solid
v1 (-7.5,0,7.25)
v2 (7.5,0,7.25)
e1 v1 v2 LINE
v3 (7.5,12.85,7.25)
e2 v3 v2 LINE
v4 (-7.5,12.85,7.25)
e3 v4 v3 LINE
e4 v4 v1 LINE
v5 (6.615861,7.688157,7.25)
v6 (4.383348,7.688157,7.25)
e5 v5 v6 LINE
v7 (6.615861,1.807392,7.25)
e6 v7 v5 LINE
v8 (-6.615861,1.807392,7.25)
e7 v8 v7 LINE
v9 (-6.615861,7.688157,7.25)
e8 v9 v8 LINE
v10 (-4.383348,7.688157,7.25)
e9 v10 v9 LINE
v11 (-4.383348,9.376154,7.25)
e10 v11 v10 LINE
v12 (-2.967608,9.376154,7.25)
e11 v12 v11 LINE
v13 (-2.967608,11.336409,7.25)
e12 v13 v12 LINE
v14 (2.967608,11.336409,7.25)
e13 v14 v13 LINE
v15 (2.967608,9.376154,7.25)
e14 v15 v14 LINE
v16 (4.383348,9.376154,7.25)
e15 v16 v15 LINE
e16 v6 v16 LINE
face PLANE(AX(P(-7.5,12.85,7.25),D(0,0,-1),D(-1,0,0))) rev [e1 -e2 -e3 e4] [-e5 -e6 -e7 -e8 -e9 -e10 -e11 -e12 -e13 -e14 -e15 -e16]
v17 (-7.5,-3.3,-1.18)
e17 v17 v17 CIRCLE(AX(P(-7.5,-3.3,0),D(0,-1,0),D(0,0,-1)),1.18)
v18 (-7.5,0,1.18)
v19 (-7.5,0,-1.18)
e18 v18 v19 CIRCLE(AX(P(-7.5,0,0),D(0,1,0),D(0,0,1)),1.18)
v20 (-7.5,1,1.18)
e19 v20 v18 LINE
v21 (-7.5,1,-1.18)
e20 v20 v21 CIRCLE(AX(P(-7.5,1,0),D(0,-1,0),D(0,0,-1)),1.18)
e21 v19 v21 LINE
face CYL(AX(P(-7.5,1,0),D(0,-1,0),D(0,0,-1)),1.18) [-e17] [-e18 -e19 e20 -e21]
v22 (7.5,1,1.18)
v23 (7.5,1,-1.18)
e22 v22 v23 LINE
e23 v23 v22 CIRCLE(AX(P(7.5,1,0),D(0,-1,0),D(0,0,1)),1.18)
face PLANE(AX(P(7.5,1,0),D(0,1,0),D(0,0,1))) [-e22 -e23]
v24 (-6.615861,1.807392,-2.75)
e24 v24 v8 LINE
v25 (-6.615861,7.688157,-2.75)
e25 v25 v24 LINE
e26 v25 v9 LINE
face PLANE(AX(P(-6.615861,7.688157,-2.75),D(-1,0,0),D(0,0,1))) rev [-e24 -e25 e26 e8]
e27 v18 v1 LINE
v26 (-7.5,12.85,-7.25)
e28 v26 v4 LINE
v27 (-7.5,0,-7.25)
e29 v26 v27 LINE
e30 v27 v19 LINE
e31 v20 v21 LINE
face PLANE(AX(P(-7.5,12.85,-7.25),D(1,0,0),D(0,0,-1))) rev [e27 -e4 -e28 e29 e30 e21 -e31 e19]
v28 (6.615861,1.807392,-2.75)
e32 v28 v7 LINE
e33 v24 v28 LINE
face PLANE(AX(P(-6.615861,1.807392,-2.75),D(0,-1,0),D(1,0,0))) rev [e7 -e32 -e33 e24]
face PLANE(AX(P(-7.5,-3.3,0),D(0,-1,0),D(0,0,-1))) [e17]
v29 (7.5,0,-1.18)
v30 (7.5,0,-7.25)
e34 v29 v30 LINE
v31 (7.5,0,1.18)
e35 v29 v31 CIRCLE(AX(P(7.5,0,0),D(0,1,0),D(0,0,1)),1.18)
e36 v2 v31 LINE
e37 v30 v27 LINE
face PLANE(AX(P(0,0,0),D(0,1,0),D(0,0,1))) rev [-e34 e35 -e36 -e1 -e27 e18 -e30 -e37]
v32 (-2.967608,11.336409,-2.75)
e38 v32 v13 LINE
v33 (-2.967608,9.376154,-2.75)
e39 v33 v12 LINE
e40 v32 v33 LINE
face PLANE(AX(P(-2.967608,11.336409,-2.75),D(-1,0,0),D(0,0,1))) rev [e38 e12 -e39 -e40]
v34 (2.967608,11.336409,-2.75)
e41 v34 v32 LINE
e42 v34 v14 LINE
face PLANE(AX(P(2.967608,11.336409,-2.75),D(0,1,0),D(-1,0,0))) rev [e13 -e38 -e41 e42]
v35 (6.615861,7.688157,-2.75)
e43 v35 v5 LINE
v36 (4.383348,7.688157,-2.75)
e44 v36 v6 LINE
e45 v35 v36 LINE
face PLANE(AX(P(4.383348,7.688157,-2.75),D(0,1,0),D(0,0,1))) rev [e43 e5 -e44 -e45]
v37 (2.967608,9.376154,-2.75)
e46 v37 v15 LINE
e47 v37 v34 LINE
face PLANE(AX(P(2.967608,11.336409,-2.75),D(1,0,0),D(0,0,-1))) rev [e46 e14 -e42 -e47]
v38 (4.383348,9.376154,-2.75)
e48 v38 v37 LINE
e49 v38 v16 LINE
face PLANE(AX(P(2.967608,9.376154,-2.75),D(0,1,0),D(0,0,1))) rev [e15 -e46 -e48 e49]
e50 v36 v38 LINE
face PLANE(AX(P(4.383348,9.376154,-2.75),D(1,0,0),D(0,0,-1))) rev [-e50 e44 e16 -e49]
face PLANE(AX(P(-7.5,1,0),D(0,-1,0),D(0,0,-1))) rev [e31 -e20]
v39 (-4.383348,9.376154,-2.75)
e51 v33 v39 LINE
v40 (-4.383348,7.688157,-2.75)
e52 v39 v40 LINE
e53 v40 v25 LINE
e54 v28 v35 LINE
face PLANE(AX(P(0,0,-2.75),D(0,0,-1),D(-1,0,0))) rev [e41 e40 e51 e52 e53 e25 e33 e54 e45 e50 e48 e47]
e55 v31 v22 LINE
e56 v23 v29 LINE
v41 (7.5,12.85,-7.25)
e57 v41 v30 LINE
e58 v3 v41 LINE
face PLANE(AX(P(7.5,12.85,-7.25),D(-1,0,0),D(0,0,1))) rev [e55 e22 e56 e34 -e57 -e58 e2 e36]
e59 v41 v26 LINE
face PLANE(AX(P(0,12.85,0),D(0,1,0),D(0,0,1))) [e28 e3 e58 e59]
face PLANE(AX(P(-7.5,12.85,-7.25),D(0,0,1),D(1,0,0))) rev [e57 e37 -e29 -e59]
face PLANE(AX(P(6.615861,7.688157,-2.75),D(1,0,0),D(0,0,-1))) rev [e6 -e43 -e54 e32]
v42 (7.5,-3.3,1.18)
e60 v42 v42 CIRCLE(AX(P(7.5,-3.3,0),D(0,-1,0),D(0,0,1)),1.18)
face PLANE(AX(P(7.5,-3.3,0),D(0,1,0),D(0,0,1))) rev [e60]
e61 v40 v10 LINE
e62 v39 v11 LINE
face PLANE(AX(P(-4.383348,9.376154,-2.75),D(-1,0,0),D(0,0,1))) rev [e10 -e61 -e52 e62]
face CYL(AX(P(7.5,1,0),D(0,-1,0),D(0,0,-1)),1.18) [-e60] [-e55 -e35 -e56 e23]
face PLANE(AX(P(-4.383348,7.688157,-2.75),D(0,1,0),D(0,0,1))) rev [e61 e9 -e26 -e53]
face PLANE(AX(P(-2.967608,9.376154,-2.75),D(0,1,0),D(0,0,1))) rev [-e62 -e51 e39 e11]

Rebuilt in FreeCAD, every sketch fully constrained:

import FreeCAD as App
import Part
import Sketcher

doc = App.newDocument("Part")
params = doc.addObject("Spreadsheet::Sheet", "Params")
for row, (alias, value) in enumerate([
    ("sketch1_width", "15 mm"),
    ("sketch1_height", "14.5 mm"),
    ("pad1_length", "12.85 mm"),
    ("sketch2_diameter", "2.36 mm"),
    ("pad2_length", "3.3 mm"),
    ("pad2_length2", "1 mm"),
    ("pocket1_length", "10 mm"),
], start=1):
    params.set(f"A{row}", alias)
    params.set(f"B{row}", "=" + value)
    params.setAlias(f"B{row}", alias)

body = doc.addObject("PartDesign::Body", "Body")

sketch1 = body.newObject("Sketcher::SketchObject", "Sketch")
sketch1.AttachmentSupport = (doc.getObject("XZ_Plane"), [""])
sketch1.MapMode = "FlatFace"
sketch1.addGeometry([
    Part.LineSegment(App.Vector(-7.5, -7.25, 0), App.Vector(-7.5, 7.25, 0)),
    Part.LineSegment(App.Vector(-7.5, 7.25, 0), App.Vector(7.5, 7.25, 0)),
    Part.LineSegment(App.Vector(7.5, 7.25, 0), App.Vector(7.5, -7.25, 0)),
    Part.LineSegment(App.Vector(7.5, -7.25, 0), App.Vector(-7.5, -7.25, 0)),
], False)
sketch1.addConstraint([
    Sketcher.Constraint("Coincident", 0, 2, 1, 1),
    Sketcher.Constraint("Coincident", 1, 2, 2, 1),
    Sketcher.Constraint("Coincident", 2, 2, 3, 1),
    Sketcher.Constraint("Coincident", 3, 2, 0, 1),
    Sketcher.Constraint("Vertical", 0),
    Sketcher.Constraint("Horizontal", 1),
    Sketcher.Constraint("Vertical", 2),
    Sketcher.Constraint("Horizontal", 3),
    Sketcher.Constraint("Symmetric", 0, 2, 2, 2, -1, 1),
    Sketcher.Constraint("DistanceX", 1, 1, 1, 2, 15.0),
    Sketcher.Constraint("DistanceY", 0, 1, 0, 2, 14.5),
])
sketch1.setExpression("Constraints[9]", "Params.sketch1_width")
sketch1.setExpression("Constraints[10]", "Params.sketch1_height")
pad1 = body.newObject("PartDesign::Pad", "Pad")
pad1.Profile = sketch1
pad1.setExpression("Length", "Params.pad1_length")
pad1.Reversed = True

sketch2 = body.newObject("Sketcher::SketchObject", "Sketch001")
sketch2.AttachmentSupport = (doc.getObject("XZ_Plane"), [""])
sketch2.MapMode = "FlatFace"
sketch2.addGeometry([
    Part.Circle(App.Vector(-7.5, 0, 0), App.Vector(0, 0, 1), 1.18),
    Part.Circle(App.Vector(7.5, 0, 0), App.Vector(0, 0, 1), 1.18),
], False)
sketch2.addConstraint([
    Sketcher.Constraint("Equal", 0, 1),
    Sketcher.Constraint("Symmetric", 0, 3, 1, 3, -1, 1),
    Sketcher.Constraint("PointOnObject", 0, 3, -1),
    Sketcher.Constraint("Diameter", 0, 2.36),
    Sketcher.Constraint("DistanceX", 0, 3, 1, 3, 15.0),
])
sketch2.setExpression("Constraints[3]", "Params.sketch2_diameter")
pad2 = body.newObject("PartDesign::Pad", "Pad001")
pad2.Profile = sketch2
pad2.Type = "TwoLengths"
pad2.setExpression("Length", "Params.pad2_length")
pad2.setExpression("Length2", "Params.pad2_length2")

sketch3 = body.newObject("Sketcher::SketchObject", "Sketch002")
sketch3.AttachmentSupport = (doc.getObject("XY_Plane"), [""])
sketch3.MapMode = "FlatFace"
sketch3.AttachmentOffset = App.Placement(App.Vector(0, 0, 7.25), App.Rotation())
sketch3.addGeometry([
    Part.LineSegment(App.Vector(2.967608, 11.336409, 0), App.Vector(-2.967608, 11.336409, 0)),
    Part.LineSegment(App.Vector(-2.967608, 11.336409, 0), App.Vector(-2.967608, 9.376154, 0)),
    Part.LineSegment(App.Vector(-2.967608, 9.376154, 0), App.Vector(-4.383348, 9.376154, 0)),
    Part.LineSegment(App.Vector(-4.383348, 9.376154, 0), App.Vector(-4.383348, 7.688157, 0)),
    Part.LineSegment(App.Vector(-4.383348, 7.688157, 0), App.Vector(-6.615861, 7.688157, 0)),
    Part.LineSegment(App.Vector(-6.615861, 7.688157, 0), App.Vector(-6.615861, 1.807392, 0)),
    Part.LineSegment(App.Vector(-6.615861, 1.807392, 0), App.Vector(6.615861, 1.807392, 0)),
    Part.LineSegment(App.Vector(6.615861, 1.807392, 0), App.Vector(6.615861, 7.688157, 0)),
    Part.LineSegment(App.Vector(6.615861, 7.688157, 0), App.Vector(4.383348, 7.688157, 0)),
    Part.LineSegment(App.Vector(4.383348, 7.688157, 0), App.Vector(4.383348, 9.376154, 0)),
    Part.LineSegment(App.Vector(4.383348, 9.376154, 0), App.Vector(2.967608, 9.376154, 0)),
    Part.LineSegment(App.Vector(2.967608, 9.376154, 0), App.Vector(2.967608, 11.336409, 0)),
], False)
sketch3.addConstraint([
    Sketcher.Constraint("Coincident", 0, 2, 1, 1),
    Sketcher.Constraint("Coincident", 1, 2, 2, 1),
    Sketcher.Constraint("Coincident", 2, 2, 3, 1),
    Sketcher.Constraint("Coincident", 3, 2, 4, 1),
    Sketcher.Constraint("Coincident", 4, 2, 5, 1),
    Sketcher.Constraint("Coincident", 5, 2, 6, 1),
    Sketcher.Constraint("Coincident", 6, 2, 7, 1),
    Sketcher.Constraint("Coincident", 7, 2, 8, 1),
    Sketcher.Constraint("Coincident", 8, 2, 9, 1),
    Sketcher.Constraint("Coincident", 9, 2, 10, 1),
    Sketcher.Constraint("Coincident", 10, 2, 11, 1),
    Sketcher.Constraint("Coincident", 11, 2, 0, 1),
    Sketcher.Constraint("Horizontal", 0),
    Sketcher.Constraint("Vertical", 1),
    Sketcher.Constraint("Horizontal", 2),
    Sketcher.Constraint("Vertical", 3),
    Sketcher.Constraint("Horizontal", 4),
    Sketcher.Constraint("Vertical", 5),
    Sketcher.Constraint("Horizontal", 6),
    Sketcher.Constraint("Vertical", 7),
    Sketcher.Constraint("Horizontal", 8),
    Sketcher.Constraint("Vertical", 9),
    Sketcher.Constraint("Horizontal", 10),
    Sketcher.Constraint("Vertical", 11),
    Sketcher.Constraint("Symmetric", 4, 2, 7, 2, -2),
    Sketcher.Constraint("Symmetric", 2, 2, 9, 2, -2),
    Sketcher.Constraint("Equal", 2, 10),
    Sketcher.Constraint("DistanceX", 2, 2, 2, 1, 1.41574),
    Sketcher.Constraint("DistanceX", 6, 1, 6, 2, 13.231721),
    Sketcher.Constraint("DistanceX", 0, 2, 0, 1, 5.935217),
    Sketcher.Constraint("DistanceY", 1, 2, 1, 1, 1.960255),
    Sketcher.Constraint("DistanceY", 3, 2, 3, 1, 1.687997),
    Sketcher.Constraint("DistanceY", 5, 2, 5, 1, 5.880765),
    Sketcher.Constraint("DistanceY", -1, 1, 0, 2, 11.336409),
])
pocket1 = body.newObject("PartDesign::Pocket", "Pocket")
pocket1.Profile = sketch3
pocket1.setExpression("Length", "Params.pocket1_length")

doc.recompute()
